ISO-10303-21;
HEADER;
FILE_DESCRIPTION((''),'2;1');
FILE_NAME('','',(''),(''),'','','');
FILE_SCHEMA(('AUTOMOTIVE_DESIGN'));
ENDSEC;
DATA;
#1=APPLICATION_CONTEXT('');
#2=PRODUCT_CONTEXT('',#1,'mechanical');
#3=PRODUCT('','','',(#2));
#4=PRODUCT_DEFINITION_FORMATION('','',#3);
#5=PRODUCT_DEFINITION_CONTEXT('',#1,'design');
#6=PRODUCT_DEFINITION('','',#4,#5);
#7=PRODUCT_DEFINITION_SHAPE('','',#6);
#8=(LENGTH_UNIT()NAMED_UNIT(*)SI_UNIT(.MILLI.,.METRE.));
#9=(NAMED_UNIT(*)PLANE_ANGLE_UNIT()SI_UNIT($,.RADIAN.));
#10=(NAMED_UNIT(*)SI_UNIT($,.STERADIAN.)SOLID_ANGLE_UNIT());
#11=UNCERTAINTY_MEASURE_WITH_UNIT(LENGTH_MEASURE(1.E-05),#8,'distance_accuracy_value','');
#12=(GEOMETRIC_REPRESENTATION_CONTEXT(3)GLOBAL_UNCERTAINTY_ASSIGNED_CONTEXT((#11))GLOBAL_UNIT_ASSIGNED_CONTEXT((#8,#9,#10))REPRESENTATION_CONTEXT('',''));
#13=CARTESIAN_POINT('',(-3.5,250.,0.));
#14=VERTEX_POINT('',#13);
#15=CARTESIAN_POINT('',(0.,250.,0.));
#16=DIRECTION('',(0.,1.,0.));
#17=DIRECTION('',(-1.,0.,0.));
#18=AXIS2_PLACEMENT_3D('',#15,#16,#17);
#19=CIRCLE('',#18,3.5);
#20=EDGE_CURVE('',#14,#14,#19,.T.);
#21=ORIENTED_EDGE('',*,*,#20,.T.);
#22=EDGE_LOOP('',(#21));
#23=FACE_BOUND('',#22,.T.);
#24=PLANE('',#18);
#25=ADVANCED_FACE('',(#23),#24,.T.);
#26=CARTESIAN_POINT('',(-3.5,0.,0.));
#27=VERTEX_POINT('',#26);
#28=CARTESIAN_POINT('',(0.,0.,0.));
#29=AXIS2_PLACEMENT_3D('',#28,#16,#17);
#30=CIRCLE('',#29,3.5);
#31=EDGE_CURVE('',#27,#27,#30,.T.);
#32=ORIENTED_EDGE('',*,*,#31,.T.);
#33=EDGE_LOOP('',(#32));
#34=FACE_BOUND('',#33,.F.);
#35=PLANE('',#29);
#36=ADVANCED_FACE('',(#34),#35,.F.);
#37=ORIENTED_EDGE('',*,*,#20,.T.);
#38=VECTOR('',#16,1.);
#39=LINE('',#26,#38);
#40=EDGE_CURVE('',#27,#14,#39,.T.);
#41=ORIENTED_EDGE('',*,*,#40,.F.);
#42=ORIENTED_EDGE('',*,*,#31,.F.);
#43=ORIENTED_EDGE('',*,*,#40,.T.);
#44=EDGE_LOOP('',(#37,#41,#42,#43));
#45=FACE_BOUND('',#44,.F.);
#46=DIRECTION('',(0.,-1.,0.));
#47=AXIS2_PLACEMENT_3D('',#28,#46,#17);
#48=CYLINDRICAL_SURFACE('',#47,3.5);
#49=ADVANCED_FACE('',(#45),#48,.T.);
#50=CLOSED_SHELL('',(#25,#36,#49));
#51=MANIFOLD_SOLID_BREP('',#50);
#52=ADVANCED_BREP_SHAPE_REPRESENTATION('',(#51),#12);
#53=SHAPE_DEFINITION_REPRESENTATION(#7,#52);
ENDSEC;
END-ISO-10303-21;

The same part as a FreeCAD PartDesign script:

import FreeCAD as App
import Part
import Sketcher
from FreeCAD import Vector
Q = App.Units.Quantity

doc = App.newDocument("Part")
body = doc.addObject("PartDesign::Body", "Body")

# Sketch on XZ plane
sketch1 = body.newObject("Sketcher::SketchObject", "Sketch")
sketch1.AttachmentSupport = (doc.getObject("XZ_Plane"), [""])
sketch1.MapMode = "FlatFace"
sketch1.addGeometry(Part.Circle(Vector(0, 0, 0), Vector(0, 0, 1), 3.5), False)
sketch1.addConstraint([
    Sketcher.Constraint("Coincident", 0, 3, -1, 1),
    Sketcher.Constraint("Diameter", 0, Q("7 mm")),
])
pad1 = body.newObject("PartDesign::Pad", "Pad")
pad1.Profile = sketch1
pad1.Length = 250
pad1.Reversed = True

doc.recompute()
